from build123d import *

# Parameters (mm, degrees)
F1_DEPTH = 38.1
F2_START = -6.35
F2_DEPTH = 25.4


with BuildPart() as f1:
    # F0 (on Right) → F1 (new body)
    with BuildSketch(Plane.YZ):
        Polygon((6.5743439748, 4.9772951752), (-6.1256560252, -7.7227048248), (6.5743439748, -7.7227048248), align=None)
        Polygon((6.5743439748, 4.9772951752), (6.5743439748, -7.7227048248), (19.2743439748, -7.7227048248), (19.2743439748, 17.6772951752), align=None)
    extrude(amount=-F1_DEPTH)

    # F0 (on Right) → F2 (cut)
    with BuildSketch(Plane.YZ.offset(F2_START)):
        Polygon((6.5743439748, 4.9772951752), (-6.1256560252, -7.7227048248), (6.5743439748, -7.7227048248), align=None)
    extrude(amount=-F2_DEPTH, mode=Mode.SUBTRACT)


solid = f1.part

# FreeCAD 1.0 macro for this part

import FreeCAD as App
import Part
import Sketcher

V = App.Vector
Q = App.Units.Quantity


def add_polygon(sketch, points):
    """Adds a closed chain of lines whose ends are joined by coincident constraints."""
    first, n = sketch.GeometryCount, len(points)
    for a, b in zip(points, points[1:] + points[:1]):
        sketch.addGeometry(Part.LineSegment(App.Vector(*a, 0), App.Vector(*b, 0)), False)
    for i in range(n):
        sketch.addConstraint(Sketcher.Constraint("Coincident", first + i, 2, first + (i + 1) % n, 1))

doc = App.newDocument("Part")
body = doc.addObject("PartDesign::Body", "Body")

sketch1 = doc.addObject("Sketcher::SketchObject", "Sketch")
body.addObject(sketch1)
sketch1.AttachmentSupport = (doc.YZ_Plane, [""])
sketch1.MapMode = "FlatFace"
add_polygon(sketch1, [(-6, -8), (19, -8), (19, 18)])
sketch1.addConstraint([
    Sketcher.Constraint("Horizontal", 0),
    Sketcher.Constraint("Vertical", 1),
    Sketcher.Constraint("Equal", 0, 1),
    Sketcher.Constraint("DistanceX", 0, 1, 0, 2, Q("1 in")),
    Sketcher.Constraint("DistanceX", -1, 1, 0, 2, 19.274344),
    Sketcher.Constraint("DistanceY", 0, 2, -1, 1, 7.722705),
])
pad1 = doc.addObject("PartDesign::Pad", "Pad")
body.addObject(pad1)
pad1.Profile = sketch1
pad1.Length = Q("1.5 in")
pad1.Reversed = True

sketch2 = doc.addObject("Sketcher::SketchObject", "Sketch001")
body.addObject(sketch2)
sketch2.AttachmentSupport = (doc.YZ_Plane, [""])
sketch2.MapMode = "FlatFace"
sketch2.AttachmentOffset = App.Placement(V(0, 0, -0.25 * 25.4), App.Rotation())
add_polygon(sketch2, [(7, 5), (-6, -8), (7, -8)])
sketch2.addConstraint([
    Sketcher.Constraint("Horizontal", 1),
    Sketcher.Constraint("Vertical", 2),
    Sketcher.Constraint("Equal", 1, 2),
    Sketcher.Constraint("DistanceX", 1, 1, 1, 2, Q("0.5 in")),
    Sketcher.Constraint("DistanceX", 0, 2, -1, 1, 6.125656),
    Sketcher.Constraint("DistanceY", 0, 2, -1, 1, 7.722705),
])
pocket1 = doc.addObject("PartDesign::Pocket", "Pocket")
body.addObject(pocket1)
pocket1.Profile = sketch2
pocket1.Length = Q("1 in")

doc.recompute()
